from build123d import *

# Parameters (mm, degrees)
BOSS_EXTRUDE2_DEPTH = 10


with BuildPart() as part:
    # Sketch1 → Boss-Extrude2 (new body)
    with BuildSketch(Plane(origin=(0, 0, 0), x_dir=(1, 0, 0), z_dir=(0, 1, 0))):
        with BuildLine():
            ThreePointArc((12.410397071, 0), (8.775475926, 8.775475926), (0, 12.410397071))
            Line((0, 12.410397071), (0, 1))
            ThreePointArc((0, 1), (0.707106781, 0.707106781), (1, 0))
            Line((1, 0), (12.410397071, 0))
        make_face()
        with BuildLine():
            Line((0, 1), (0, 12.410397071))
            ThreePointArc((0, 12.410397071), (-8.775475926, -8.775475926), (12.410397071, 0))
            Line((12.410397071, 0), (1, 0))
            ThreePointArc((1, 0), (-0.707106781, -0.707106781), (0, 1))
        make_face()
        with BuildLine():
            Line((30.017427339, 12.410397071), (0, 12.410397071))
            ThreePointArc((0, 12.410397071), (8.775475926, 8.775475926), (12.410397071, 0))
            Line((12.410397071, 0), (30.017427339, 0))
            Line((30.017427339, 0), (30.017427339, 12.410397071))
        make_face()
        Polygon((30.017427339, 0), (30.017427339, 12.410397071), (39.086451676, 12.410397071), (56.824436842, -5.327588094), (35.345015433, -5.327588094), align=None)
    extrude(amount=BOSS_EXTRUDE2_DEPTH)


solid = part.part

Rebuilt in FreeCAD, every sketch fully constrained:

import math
import FreeCAD as App
import Part
import Sketcher

V = App.Vector
Q = App.Units.Quantity

doc = App.newDocument("Part")
body = doc.addObject("PartDesign::Body", "Body")

sketch1 = body.newObject("Sketcher::SketchObject", "Sketch")
sketch1.AttachmentSupport = (doc.getObject("XZ_Plane"), [""])
sketch1.MapMode = "FlatFace"
sketch1.addGeometry([
    Part.ArcOfCircle(Part.Circle(V(0, 0, 0), V(0, 0, 1), 12.410397), math.radians(0), math.radians(270)),
    Part.LineSegment(V(12.410397, 0, 0), V(30.017427, 0, 0)),
    Part.LineSegment(V(30.017427, 0, 0), V(35.345015, 5.327588, 0)),
    Part.LineSegment(V(35.345015, 5.327588, 0), V(56.824437, 5.327588, 0)),
    Part.LineSegment(V(56.824437, 5.327588, 0), V(39.086452, -12.410397, 0)),
    Part.LineSegment(V(39.086452, -12.410397, 0), V(0, -12.410397, 0)),
    Part.ArcOfCircle(Part.Circle(V(0, 0, 0), V(0, 0, 1), 1), math.radians(-90), math.radians(0)),
    Part.ArcOfCircle(Part.Circle(V(0, 0, 0), V(0, 0, 1), 1), math.radians(0), math.radians(270)),
], False)
sketch1.addConstraint([
    Sketcher.Constraint("Coincident", 0, 1, 1, 1),
    Sketcher.Constraint("Coincident", 1, 2, 2, 1),
    Sketcher.Constraint("Coincident", 2, 2, 3, 1),
    Sketcher.Constraint("Coincident", 3, 2, 4, 1),
    Sketcher.Constraint("Coincident", 4, 2, 5, 1),
    Sketcher.Constraint("Tangent", 5, 2, 0, 2),
    Sketcher.Constraint("Tangent", 6, 1, 7, 2),
    Sketcher.Constraint("Coincident", 7, 1, 6, 2),
    Sketcher.Constraint("Horizontal", 1),
    Sketcher.Constraint("Horizontal", 3),
    Sketcher.Constraint("Horizontal", 5),
    Sketcher.Constraint("Coincident", 0, 3, -1, 1),
    Sketcher.Constraint("Coincident", 6, 3, -1, 1),
    Sketcher.Constraint("PointOnObject", 0, 1, -1),
    Sketcher.Constraint("PointOnObject", 6, 1, -2),
    Sketcher.Constraint("PointOnObject", 7, 1, -1),
    Sketcher.Constraint("Parallel", 2, 4),
    Sketcher.Constraint("Radius", 6, Q("1 mm")),
    Sketcher.Constraint("Angle", 2, Q("45 deg")),
    Sketcher.Constraint("Radius", 0, Q("12.410397 mm")),
    Sketcher.Constraint("Distance", 4, Q("25.085299 mm")),
    Sketcher.Constraint("DistanceX", 1, 1, 1, 2, Q("17.60703 mm")),
    Sketcher.Constraint("DistanceX", 3, 1, 3, 2, Q("21.479421 mm")),
])
pad1 = body.newObject("PartDesign::Pad", "Pad")
pad1.Profile = sketch1
pad1.Length = 10
pad1.Reversed = True

doc.recompute()
